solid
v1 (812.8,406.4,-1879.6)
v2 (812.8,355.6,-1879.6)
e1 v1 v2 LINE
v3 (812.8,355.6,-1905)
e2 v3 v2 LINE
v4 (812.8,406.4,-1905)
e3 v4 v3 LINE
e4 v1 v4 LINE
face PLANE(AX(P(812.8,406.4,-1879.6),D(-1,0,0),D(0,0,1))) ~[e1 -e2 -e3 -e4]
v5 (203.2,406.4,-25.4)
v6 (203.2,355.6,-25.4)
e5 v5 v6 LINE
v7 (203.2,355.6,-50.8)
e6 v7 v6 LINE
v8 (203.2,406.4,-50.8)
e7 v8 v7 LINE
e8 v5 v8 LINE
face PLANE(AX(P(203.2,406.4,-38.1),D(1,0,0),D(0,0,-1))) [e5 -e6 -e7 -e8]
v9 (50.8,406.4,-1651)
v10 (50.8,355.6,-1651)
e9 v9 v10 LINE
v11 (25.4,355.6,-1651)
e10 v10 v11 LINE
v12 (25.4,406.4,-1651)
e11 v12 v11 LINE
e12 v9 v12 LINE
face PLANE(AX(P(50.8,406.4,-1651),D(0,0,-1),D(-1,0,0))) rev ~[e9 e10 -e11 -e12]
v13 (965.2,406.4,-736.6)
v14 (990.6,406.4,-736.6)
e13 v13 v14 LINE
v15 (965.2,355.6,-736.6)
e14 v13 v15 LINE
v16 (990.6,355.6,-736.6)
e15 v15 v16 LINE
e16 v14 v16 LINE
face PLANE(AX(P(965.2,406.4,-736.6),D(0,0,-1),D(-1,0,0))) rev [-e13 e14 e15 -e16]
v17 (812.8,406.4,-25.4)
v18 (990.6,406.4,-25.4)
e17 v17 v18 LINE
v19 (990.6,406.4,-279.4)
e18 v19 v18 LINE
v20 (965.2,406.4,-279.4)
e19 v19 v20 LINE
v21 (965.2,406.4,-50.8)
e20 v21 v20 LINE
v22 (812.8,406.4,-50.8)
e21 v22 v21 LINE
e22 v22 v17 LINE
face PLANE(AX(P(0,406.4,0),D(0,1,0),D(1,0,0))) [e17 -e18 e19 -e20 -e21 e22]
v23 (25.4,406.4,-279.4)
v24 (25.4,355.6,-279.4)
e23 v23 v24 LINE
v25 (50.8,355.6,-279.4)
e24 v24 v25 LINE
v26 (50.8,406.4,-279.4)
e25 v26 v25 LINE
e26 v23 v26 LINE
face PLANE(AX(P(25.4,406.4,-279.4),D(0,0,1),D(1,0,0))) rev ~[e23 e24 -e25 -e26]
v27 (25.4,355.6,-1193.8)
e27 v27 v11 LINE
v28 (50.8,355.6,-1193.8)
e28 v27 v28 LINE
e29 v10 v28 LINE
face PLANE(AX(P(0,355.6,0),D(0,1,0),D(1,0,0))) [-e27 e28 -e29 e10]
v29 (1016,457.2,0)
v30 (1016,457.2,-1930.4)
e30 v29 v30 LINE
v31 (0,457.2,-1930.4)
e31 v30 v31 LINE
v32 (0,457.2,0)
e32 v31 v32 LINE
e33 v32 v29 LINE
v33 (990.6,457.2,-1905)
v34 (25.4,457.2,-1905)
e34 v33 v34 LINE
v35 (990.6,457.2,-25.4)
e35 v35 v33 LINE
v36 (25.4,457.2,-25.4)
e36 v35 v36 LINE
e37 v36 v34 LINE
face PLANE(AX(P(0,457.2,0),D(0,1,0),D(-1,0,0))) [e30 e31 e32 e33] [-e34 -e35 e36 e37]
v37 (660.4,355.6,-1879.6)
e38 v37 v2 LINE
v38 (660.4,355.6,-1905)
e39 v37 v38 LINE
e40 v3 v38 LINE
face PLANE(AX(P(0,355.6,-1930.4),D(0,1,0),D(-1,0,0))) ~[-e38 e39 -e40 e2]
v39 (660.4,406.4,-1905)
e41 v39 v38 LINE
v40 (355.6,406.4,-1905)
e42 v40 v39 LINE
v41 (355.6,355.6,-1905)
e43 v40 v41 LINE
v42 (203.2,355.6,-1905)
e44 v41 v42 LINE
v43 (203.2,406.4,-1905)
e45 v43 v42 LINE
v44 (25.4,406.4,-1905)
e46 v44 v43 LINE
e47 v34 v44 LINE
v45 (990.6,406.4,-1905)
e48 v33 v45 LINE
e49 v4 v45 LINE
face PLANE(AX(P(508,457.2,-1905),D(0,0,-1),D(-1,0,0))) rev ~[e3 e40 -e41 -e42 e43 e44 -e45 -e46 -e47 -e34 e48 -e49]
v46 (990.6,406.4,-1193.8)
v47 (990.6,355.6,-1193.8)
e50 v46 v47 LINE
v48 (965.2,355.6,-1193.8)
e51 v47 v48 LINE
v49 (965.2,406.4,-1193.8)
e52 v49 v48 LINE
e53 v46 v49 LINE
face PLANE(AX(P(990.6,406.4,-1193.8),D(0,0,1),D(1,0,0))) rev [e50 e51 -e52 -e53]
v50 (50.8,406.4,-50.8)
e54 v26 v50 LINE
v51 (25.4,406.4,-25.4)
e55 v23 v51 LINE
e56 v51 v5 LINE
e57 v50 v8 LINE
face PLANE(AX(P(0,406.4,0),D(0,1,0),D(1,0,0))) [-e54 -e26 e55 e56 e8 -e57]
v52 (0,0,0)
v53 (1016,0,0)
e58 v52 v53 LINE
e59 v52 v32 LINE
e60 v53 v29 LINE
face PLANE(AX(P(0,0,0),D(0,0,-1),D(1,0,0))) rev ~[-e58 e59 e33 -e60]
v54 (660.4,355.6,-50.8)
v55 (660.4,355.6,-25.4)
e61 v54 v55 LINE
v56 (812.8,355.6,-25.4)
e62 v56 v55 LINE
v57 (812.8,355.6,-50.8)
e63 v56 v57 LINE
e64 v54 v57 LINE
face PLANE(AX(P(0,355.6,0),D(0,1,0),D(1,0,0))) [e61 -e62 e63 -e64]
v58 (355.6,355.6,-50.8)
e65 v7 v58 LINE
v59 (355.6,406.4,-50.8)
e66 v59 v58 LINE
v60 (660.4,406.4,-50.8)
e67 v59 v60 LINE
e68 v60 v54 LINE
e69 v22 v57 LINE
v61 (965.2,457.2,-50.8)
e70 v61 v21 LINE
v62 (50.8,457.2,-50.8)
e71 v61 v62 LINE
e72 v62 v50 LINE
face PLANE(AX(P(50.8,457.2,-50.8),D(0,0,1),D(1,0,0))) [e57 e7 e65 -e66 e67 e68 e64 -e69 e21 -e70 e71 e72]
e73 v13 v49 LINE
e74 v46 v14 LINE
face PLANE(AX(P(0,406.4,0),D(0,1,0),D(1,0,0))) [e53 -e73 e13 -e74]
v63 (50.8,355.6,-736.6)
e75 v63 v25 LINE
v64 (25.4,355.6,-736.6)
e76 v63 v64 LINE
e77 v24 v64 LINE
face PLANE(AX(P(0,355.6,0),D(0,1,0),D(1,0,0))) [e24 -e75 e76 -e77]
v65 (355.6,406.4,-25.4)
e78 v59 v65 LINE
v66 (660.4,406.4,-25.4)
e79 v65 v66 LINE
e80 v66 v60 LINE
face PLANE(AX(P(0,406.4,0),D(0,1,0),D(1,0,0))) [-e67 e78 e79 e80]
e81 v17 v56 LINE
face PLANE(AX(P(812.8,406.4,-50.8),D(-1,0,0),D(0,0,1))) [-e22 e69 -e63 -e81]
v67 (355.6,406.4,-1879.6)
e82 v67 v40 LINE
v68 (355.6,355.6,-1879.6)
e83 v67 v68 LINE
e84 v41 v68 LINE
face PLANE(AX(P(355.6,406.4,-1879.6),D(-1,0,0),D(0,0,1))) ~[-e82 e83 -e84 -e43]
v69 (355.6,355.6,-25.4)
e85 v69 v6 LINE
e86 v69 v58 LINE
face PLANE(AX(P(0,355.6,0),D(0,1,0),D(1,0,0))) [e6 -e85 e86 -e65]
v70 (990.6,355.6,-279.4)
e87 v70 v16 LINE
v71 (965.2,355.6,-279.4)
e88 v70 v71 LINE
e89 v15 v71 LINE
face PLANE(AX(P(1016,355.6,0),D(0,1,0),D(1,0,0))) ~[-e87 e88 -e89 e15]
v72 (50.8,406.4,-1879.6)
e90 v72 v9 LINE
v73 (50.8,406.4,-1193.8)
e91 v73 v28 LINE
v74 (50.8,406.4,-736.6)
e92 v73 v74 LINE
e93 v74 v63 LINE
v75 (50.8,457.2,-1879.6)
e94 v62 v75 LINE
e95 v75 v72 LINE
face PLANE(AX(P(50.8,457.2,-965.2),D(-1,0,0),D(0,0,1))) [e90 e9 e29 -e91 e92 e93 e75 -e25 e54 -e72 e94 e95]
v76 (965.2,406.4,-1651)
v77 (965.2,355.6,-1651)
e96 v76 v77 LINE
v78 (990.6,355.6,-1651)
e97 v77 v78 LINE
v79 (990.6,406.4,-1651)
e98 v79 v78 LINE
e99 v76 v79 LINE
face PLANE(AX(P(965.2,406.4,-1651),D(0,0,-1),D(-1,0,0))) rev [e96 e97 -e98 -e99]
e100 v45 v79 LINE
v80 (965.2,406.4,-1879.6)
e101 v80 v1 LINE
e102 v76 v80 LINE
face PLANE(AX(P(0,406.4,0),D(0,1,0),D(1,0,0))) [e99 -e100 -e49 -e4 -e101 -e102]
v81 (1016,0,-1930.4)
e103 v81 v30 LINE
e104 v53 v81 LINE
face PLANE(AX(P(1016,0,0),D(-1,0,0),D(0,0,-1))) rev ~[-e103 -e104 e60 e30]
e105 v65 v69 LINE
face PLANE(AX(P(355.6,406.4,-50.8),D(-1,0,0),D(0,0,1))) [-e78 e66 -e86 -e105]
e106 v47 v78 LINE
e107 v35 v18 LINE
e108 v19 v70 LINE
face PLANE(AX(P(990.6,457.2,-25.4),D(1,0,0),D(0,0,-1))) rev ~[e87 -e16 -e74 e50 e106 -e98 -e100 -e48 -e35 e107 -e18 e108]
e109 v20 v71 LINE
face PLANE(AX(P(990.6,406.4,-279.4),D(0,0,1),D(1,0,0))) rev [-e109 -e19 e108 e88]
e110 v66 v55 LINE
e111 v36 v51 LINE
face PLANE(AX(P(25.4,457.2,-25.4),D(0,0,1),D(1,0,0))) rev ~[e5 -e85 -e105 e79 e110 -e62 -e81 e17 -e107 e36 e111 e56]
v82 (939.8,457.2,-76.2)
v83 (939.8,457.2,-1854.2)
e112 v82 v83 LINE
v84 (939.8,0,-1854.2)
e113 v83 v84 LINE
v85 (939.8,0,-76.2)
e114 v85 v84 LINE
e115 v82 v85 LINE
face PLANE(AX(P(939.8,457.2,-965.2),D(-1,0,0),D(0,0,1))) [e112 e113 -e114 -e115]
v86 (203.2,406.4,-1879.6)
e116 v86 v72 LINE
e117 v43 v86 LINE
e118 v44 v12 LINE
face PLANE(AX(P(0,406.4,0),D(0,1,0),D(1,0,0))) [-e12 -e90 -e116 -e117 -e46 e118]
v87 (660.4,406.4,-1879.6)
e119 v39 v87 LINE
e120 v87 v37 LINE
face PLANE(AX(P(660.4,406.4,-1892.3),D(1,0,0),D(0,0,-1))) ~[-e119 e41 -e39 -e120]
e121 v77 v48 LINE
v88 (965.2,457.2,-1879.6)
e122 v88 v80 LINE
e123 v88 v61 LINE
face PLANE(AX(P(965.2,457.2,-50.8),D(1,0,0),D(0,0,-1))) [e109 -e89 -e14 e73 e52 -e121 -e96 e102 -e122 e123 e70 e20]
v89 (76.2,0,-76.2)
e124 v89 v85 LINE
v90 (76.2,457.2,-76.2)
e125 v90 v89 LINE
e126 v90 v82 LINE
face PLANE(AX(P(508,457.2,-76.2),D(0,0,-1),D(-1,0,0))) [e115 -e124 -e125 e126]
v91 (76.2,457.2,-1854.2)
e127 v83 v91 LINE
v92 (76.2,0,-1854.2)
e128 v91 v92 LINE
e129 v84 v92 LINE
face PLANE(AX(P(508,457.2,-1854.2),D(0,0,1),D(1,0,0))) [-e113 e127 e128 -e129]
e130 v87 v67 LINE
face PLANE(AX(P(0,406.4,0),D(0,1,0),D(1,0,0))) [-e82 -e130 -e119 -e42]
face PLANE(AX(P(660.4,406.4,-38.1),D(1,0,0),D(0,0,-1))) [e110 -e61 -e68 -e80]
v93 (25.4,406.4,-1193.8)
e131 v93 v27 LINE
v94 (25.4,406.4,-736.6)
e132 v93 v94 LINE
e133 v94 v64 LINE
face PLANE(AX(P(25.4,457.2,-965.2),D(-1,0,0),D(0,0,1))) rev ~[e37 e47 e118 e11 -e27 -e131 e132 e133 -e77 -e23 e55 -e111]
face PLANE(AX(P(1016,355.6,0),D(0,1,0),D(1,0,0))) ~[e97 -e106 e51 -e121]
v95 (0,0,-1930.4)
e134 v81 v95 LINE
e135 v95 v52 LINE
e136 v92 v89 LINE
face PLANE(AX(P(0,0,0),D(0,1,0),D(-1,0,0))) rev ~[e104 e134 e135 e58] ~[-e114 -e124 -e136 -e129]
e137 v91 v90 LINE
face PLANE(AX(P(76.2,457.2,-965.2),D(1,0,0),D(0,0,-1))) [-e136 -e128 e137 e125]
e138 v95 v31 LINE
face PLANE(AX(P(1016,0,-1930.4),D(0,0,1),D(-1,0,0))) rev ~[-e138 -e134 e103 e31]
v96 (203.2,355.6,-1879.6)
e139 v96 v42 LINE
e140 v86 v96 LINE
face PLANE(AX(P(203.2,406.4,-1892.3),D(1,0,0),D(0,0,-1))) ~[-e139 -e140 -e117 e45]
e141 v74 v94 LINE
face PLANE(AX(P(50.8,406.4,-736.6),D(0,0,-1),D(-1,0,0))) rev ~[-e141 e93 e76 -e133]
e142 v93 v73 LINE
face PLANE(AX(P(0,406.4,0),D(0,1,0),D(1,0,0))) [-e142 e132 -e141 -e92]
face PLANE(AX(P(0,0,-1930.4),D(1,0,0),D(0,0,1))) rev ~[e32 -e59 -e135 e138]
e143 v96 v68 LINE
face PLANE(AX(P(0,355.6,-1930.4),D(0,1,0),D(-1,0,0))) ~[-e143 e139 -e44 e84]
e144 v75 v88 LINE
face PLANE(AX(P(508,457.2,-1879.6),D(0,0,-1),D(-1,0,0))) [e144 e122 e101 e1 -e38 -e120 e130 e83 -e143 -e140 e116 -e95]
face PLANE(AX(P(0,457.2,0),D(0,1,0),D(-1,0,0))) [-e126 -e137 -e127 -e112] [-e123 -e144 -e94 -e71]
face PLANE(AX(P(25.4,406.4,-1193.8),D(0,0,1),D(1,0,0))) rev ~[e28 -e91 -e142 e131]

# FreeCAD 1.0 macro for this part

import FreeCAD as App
import Part
import Sketcher

V = App.Vector
Q = App.Units.Quantity


def add_polygon(sketch, points):
    """Adds a closed chain of lines whose ends are joined by coincident constraints."""
    first, n = sketch.GeometryCount, len(points)
    for a, b in zip(points, points[1:] + points[:1]):
        sketch.addGeometry(Part.LineSegment(App.Vector(*a, 0), App.Vector(*b, 0)), False)
    for i in range(n):
        sketch.addConstraint(Sketcher.Constraint("Coincident", first + i, 2, first + (i + 1) % n, 1))

doc = App.newDocument("Part")
body = doc.addObject("PartDesign::Body", "Body")

# Sketch on XZ plane
sketch1 = body.newObject("Sketcher::SketchObject", "Sketch")
sketch1.AttachmentSupport = (doc.getObject("XZ_Plane"), [""])
sketch1.MapMode = "FlatFace"
add_polygon(sketch1, [(0, -1930.4), (0, 0), (1016, 0), (1016, -1930.4)])  # lines 0-3
sketch1.addConstraint([
    Sketcher.Constraint("Vertical", 0),
    Sketcher.Constraint("Horizontal", 1),
    Sketcher.Constraint("Vertical", 2),
    Sketcher.Constraint("Horizontal", 3),
    Sketcher.Constraint("Coincident", 0, 2, -1, 1),
    Sketcher.Constraint("DistanceX", 1, 1, 1, 2, Q("40 in")),
    Sketcher.Constraint("DistanceY", 0, 1, 0, 2, Q("76 in")),
])
pad1 = body.newObject("PartDesign::Pad", "Pad")
pad1.Profile = sketch1
pad1.Length = Q("18 in")
pad1.Reversed = True

# Sketch on XZ plane
sketch2 = body.newObject("Sketcher::SketchObject", "Sketch001")
sketch2.AttachmentSupport = (doc.getObject("XZ_Plane"), [""])
sketch2.MapMode = "FlatFace"
sketch2.AttachmentOffset = App.Placement(V(0, 0, -18 * 25.4), App.Rotation())
add_polygon(sketch2, [(25.4, -25.4), (990.6, -25.4), (990.6, -1905), (25.4, -1905)])  # lines 0-3
add_polygon(sketch2, [(50.8, -50.8), (50.8, -1879.6), (965.2, -1879.6), (965.2, -50.8)])  # lines 4-7
sketch2.addConstraint([
    Sketcher.Constraint("Horizontal", 0),
    Sketcher.Constraint("Vertical", 1),
    Sketcher.Constraint("Horizontal", 2),
    Sketcher.Constraint("Vertical", 3),
    Sketcher.Constraint("Vertical", 4),
    Sketcher.Constraint("Horizontal", 5),
    Sketcher.Constraint("Vertical", 6),
    Sketcher.Constraint("Horizontal", 7),
    Sketcher.Constraint("DistanceY", 0, 2, -1, 1, Q("1 in")),
    Sketcher.Constraint("DistanceX", -1, 1, 2, 2, Q("1 in")),
    Sketcher.Constraint("DistanceX", 2, 2, 4, 2, Q("1 in")),
    Sketcher.Constraint("DistanceY", 2, 2, 4, 2, Q("1 in")),
    Sketcher.Constraint("DistanceX", 5, 2, 1, 2, Q("1 in")),
    Sketcher.Constraint("DistanceY", 6, 2, 0, 2, Q("1 in")),
    Sketcher.Constraint("DistanceX", 0, 1, 0, 2, Q("38 in")),
    Sketcher.Constraint("DistanceY", 1, 2, 1, 1, Q("74 in")),
])
pocket1 = body.newObject("PartDesign::Pocket", "Pocket")
pocket1.Profile = sketch2
pocket1.Length = Q("2 in")
pocket1.Reversed = True

# Sketch on XZ plane
sketch3 = body.newObject("Sketcher::SketchObject", "Sketch002")
sketch3.AttachmentSupport = (doc.getObject("XZ_Plane"), [""])
sketch3.MapMode = "FlatFace"
sketch3.AttachmentOffset = App.Placement(V(0, 0, -16 * 25.4), App.Rotation())
add_polygon(sketch3, [(25.4, -736.6), (25.4, -279.4), (50.8, -279.4), (50.8, -736.6)])  # lines 0-3
add_polygon(sketch3, [(25.4, -1651), (25.4, -1193.8), (50.8, -1193.8), (50.8, -1651)])  # lines 4-7
sketch3.addConstraint([
    Sketcher.Constraint("Vertical", 0),
    Sketcher.Constraint("Horizontal", 1),
    Sketcher.Constraint("Vertical", 2),
    Sketcher.Constraint("Horizontal", 3),
    Sketcher.Constraint("Vertical", 4),
    Sketcher.Constraint("Horizontal", 5),
    Sketcher.Constraint("Vertical", 6),
    Sketcher.Constraint("Horizontal", 7),
    Sketcher.Constraint("Vertical", 3, 2, 4, 2),
    Sketcher.Constraint("Vertical", 2, 2, 5, 2),
    Sketcher.Constraint("Equal", 2, 4),
    Sketcher.Constraint("DistanceY", 0, 1, 0, 2, Q("18 in")),
    Sketcher.Constraint("DistanceY", 4, 2, 3, 2, Q("18 in")),
    Sketcher.Constraint("DistanceX", 1, 1, 1, 2, Q("1 in")),
    Sketcher.Constraint("DistanceX", -1, 1, 0, 2, Q("1 in")),
    Sketcher.Constraint("DistanceY", 0, 2, -1, 1, Q("11 in")),
])
pocket2 = body.newObject("PartDesign::Pocket", "Pocket001")
pocket2.Profile = sketch3
pocket2.Length = Q("2 in")
pocket2.Reversed = True
doc.recompute()

datumplane = body.newObject("PartDesign::Plane", "DatumPlane")
datumplane.AttachmentSupport = (doc.getObject("YZ_Plane"), [""])
datumplane.MapMode = "FlatFace"
datumplane.AttachmentOffset = App.Placement(V(0, 0, 20 * 25.4), App.Rotation())
mirrored = body.newObject("PartDesign::Mirrored", "Mirrored")
mirrored.Originals = [pocket2]
mirrored.MirrorPlane = (datumplane, [""])
body.Tip = mirrored

# Sketch on XZ plane
sketch4 = body.newObject("Sketcher::SketchObject", "Sketch003")
sketch4.AttachmentSupport = (doc.getObject("XZ_Plane"), [""])
sketch4.MapMode = "FlatFace"
sketch4.AttachmentOffset = App.Placement(V(0, 0, -16 * 25.4), App.Rotation())
add_polygon(sketch4, [(355.6, -50.8), (203.2, -50.8), (203.2, -25.4), (355.6, -25.4)])  # lines 0-3
add_polygon(sketch4, [(812.8, -50.8), (660.4, -50.8), (660.4, -25.4), (812.8, -25.4)])  # lines 4-7
sketch4.addConstraint([
    Sketcher.Constraint("Horizontal", 0),
    Sketcher.Constraint("Vertical", 1),
    Sketcher.Constraint("Horizontal", 2),
    Sketcher.Constraint("Vertical", 3),
    Sketcher.Constraint("Horizontal", 4),
    Sketcher.Constraint("Vertical", 5),
    Sketcher.Constraint("Horizontal", 6),
    Sketcher.Constraint("Vertical", 7),
    Sketcher.Constraint("Horizontal", 3, 2, 4, 2),
    Sketcher.Constraint("Horizontal", 2, 2, 5, 2),
    Sketcher.Constraint("Equal", 2, 4),
    Sketcher.Constraint("DistanceX", 0, 2, 0, 1, Q("6 in")),
    Sketcher.Constraint("DistanceY", 1, 1, 1, 2, Q("1 in")),
    Sketcher.Constraint("DistanceX", -1, 1, 0, 2, Q("8 in")),
    Sketcher.Constraint("DistanceY", 0, 2, -1, 1, Q("2 in")),
    Sketcher.Constraint("DistanceX", -1, 1, 4, 2, Q("26 in")),
])
pocket3 = body.newObject("PartDesign::Pocket", "Pocket002")
pocket3.Profile = sketch4
pocket3.Length = Q("2 in")
pocket3.Reversed = True
doc.recompute()

datumplane2 = body.newObject("PartDesign::Plane", "DatumPlane001")
datumplane2.AttachmentSupport = (doc.getObject("XY_Plane"), [""])
datumplane2.MapMode = "FlatFace"
datumplane2.AttachmentOffset = App.Placement(V(0, 0, -38 * 25.4), App.Rotation())
mirrored2 = body.newObject("PartDesign::Mirrored", "Mirrored001")
mirrored2.Originals = [pocket3]
mirrored2.MirrorPlane = (datumplane2, [""])
body.Tip = mirrored2

# Sketch on XZ plane
sketch5 = body.newObject("Sketcher::SketchObject", "Sketch004")
sketch5.AttachmentSupport = (doc.getObject("XZ_Plane"), [""])
sketch5.MapMode = "FlatFace"
sketch5.AttachmentOffset = App.Placement(V(0, 0, -18 * 25.4), App.Rotation())
add_polygon(sketch5, [(939.8, -1854.2), (76.2, -1854.2), (76.2, -76.2), (939.8, -76.2)])  # lines 0-3
sketch5.addConstraint([
    Sketcher.Constraint("Horizontal", 0),
    Sketcher.Constraint("Vertical", 1),
    Sketcher.Constraint("Horizontal", 2),
    Sketcher.Constraint("Vertical", 3),
    Sketcher.Constraint("DistanceX", 0, 2, 0, 1, Q("34 in")),
    Sketcher.Constraint("DistanceY", 1, 1, 1, 2, Q("70 in")),
    Sketcher.Constraint("DistanceX", -1, 1, 0, 2, Q("3 in")),
    Sketcher.Constraint("DistanceY", 0, 2, -1, 1, Q("73 in")),
])
pocket4 = body.newObject("PartDesign::Pocket", "Pocket003")
pocket4.Profile = sketch5
pocket4.Length = Q("24 in")
pocket4.Reversed = True

doc.recompute()
